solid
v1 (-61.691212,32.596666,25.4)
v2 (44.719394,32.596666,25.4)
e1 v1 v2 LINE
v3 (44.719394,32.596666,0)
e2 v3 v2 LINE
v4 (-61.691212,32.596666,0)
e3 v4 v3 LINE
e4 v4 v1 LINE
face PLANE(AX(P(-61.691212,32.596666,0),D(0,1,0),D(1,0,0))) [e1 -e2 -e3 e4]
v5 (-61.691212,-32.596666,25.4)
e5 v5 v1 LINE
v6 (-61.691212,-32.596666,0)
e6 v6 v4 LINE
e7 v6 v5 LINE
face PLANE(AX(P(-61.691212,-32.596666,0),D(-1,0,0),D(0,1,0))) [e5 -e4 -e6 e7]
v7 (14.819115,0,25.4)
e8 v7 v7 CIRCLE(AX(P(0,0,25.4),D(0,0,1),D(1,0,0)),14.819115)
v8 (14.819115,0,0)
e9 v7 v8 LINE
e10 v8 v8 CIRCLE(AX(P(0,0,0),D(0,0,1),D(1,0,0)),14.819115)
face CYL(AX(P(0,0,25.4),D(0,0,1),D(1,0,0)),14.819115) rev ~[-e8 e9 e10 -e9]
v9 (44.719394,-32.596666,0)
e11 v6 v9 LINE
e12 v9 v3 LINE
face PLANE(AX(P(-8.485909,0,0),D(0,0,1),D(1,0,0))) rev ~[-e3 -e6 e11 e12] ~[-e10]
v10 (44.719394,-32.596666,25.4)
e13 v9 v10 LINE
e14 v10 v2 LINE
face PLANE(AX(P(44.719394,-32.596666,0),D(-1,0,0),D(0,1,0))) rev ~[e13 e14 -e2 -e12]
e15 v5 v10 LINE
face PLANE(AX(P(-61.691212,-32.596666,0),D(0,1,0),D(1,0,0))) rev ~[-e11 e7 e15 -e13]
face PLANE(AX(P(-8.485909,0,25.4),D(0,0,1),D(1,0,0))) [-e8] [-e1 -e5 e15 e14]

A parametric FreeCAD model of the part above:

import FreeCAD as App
import Part
import Sketcher
from FreeCAD import Vector


def add_polygon(sketch, points):
    """Adds a closed chain of lines whose ends are joined by coincident constraints."""
    first, n = sketch.GeometryCount, len(points)
    for a, b in zip(points, points[1:] + points[:1]):
        sketch.addGeometry(Part.LineSegment(App.Vector(*a, 0), App.Vector(*b, 0)), False)
    for i in range(n):
        sketch.addConstraint(Sketcher.Constraint("Coincident", first + i, 2, first + (i + 1) % n, 1))

doc = App.newDocument("Part")
params = doc.addObject("Spreadsheet::Sheet", "Params")
for row, (alias, value) in enumerate([
    ("pad1_length", "1 in"),
    ("pocket1_length", "4.94 in"),
], start=1):
    params.set(f"A{row}", alias)
    params.set(f"B{row}", "=" + value)
    params.setAlias(f"B{row}", alias)

body = doc.addObject("PartDesign::Body", "Body")

sketch1 = doc.addObject("Sketcher::SketchObject", "Sketch")
body.addObject(sketch1)
sketch1.AttachmentSupport = (doc.XY_Plane, [""])
sketch1.MapMode = "FlatFace"
add_polygon(sketch1, [(-61.691212, 32.596666), (-61.691212, -32.596666), (44.719394, -32.596666), (44.719394, 32.596666)])
sketch1.addConstraint(Sketcher.Constraint("Vertical", 0))
sketch1.addConstraint(Sketcher.Constraint("Horizontal", 1))
sketch1.addConstraint(Sketcher.Constraint("Vertical", 2))
sketch1.addConstraint(Sketcher.Constraint("Horizontal", 3))
sketch1.addConstraint(Sketcher.Constraint("DistanceY", 0, 2, 0, 1, 65.193332))
sketch1.addConstraint(Sketcher.Constraint("DistanceX", 1, 1, 1, 2, 106.410607))
sketch1.addConstraint(Sketcher.Constraint("DistanceX", 0, 2, -1, 1, 61.691212))
sketch1.addConstraint(Sketcher.Constraint("DistanceY", 0, 2, -1, 1, 32.596666))
pad1 = doc.addObject("PartDesign::Pad", "Pad")
body.addObject(pad1)
pad1.Profile = sketch1
pad1.setExpression("Length", "Params.pad1_length")

sketch2 = doc.addObject("Sketcher::SketchObject", "Sketch001")
body.addObject(sketch2)
sketch2.AttachmentSupport = (doc.XY_Plane, [""])
sketch2.MapMode = "FlatFace"
sketch2.AttachmentOffset = App.Placement(Vector(0, 0, 1 * 25.4), App.Rotation())
sketch2.addGeometry(Part.Circle(Vector(0, 0, 0), Vector(0, 0, 1), 14.819115), False)
sketch2.addConstraint(Sketcher.Constraint("Coincident", 0, 3, -1, 1))
sketch2.addConstraint(Sketcher.Constraint("Diameter", 0, 29.63823))
pocket1 = doc.addObject("PartDesign::Pocket", "Pocket")
body.addObject(pocket1)
pocket1.Profile = sketch2
pocket1.setExpression("Length", "Params.pocket1_length")

doc.recompute()
